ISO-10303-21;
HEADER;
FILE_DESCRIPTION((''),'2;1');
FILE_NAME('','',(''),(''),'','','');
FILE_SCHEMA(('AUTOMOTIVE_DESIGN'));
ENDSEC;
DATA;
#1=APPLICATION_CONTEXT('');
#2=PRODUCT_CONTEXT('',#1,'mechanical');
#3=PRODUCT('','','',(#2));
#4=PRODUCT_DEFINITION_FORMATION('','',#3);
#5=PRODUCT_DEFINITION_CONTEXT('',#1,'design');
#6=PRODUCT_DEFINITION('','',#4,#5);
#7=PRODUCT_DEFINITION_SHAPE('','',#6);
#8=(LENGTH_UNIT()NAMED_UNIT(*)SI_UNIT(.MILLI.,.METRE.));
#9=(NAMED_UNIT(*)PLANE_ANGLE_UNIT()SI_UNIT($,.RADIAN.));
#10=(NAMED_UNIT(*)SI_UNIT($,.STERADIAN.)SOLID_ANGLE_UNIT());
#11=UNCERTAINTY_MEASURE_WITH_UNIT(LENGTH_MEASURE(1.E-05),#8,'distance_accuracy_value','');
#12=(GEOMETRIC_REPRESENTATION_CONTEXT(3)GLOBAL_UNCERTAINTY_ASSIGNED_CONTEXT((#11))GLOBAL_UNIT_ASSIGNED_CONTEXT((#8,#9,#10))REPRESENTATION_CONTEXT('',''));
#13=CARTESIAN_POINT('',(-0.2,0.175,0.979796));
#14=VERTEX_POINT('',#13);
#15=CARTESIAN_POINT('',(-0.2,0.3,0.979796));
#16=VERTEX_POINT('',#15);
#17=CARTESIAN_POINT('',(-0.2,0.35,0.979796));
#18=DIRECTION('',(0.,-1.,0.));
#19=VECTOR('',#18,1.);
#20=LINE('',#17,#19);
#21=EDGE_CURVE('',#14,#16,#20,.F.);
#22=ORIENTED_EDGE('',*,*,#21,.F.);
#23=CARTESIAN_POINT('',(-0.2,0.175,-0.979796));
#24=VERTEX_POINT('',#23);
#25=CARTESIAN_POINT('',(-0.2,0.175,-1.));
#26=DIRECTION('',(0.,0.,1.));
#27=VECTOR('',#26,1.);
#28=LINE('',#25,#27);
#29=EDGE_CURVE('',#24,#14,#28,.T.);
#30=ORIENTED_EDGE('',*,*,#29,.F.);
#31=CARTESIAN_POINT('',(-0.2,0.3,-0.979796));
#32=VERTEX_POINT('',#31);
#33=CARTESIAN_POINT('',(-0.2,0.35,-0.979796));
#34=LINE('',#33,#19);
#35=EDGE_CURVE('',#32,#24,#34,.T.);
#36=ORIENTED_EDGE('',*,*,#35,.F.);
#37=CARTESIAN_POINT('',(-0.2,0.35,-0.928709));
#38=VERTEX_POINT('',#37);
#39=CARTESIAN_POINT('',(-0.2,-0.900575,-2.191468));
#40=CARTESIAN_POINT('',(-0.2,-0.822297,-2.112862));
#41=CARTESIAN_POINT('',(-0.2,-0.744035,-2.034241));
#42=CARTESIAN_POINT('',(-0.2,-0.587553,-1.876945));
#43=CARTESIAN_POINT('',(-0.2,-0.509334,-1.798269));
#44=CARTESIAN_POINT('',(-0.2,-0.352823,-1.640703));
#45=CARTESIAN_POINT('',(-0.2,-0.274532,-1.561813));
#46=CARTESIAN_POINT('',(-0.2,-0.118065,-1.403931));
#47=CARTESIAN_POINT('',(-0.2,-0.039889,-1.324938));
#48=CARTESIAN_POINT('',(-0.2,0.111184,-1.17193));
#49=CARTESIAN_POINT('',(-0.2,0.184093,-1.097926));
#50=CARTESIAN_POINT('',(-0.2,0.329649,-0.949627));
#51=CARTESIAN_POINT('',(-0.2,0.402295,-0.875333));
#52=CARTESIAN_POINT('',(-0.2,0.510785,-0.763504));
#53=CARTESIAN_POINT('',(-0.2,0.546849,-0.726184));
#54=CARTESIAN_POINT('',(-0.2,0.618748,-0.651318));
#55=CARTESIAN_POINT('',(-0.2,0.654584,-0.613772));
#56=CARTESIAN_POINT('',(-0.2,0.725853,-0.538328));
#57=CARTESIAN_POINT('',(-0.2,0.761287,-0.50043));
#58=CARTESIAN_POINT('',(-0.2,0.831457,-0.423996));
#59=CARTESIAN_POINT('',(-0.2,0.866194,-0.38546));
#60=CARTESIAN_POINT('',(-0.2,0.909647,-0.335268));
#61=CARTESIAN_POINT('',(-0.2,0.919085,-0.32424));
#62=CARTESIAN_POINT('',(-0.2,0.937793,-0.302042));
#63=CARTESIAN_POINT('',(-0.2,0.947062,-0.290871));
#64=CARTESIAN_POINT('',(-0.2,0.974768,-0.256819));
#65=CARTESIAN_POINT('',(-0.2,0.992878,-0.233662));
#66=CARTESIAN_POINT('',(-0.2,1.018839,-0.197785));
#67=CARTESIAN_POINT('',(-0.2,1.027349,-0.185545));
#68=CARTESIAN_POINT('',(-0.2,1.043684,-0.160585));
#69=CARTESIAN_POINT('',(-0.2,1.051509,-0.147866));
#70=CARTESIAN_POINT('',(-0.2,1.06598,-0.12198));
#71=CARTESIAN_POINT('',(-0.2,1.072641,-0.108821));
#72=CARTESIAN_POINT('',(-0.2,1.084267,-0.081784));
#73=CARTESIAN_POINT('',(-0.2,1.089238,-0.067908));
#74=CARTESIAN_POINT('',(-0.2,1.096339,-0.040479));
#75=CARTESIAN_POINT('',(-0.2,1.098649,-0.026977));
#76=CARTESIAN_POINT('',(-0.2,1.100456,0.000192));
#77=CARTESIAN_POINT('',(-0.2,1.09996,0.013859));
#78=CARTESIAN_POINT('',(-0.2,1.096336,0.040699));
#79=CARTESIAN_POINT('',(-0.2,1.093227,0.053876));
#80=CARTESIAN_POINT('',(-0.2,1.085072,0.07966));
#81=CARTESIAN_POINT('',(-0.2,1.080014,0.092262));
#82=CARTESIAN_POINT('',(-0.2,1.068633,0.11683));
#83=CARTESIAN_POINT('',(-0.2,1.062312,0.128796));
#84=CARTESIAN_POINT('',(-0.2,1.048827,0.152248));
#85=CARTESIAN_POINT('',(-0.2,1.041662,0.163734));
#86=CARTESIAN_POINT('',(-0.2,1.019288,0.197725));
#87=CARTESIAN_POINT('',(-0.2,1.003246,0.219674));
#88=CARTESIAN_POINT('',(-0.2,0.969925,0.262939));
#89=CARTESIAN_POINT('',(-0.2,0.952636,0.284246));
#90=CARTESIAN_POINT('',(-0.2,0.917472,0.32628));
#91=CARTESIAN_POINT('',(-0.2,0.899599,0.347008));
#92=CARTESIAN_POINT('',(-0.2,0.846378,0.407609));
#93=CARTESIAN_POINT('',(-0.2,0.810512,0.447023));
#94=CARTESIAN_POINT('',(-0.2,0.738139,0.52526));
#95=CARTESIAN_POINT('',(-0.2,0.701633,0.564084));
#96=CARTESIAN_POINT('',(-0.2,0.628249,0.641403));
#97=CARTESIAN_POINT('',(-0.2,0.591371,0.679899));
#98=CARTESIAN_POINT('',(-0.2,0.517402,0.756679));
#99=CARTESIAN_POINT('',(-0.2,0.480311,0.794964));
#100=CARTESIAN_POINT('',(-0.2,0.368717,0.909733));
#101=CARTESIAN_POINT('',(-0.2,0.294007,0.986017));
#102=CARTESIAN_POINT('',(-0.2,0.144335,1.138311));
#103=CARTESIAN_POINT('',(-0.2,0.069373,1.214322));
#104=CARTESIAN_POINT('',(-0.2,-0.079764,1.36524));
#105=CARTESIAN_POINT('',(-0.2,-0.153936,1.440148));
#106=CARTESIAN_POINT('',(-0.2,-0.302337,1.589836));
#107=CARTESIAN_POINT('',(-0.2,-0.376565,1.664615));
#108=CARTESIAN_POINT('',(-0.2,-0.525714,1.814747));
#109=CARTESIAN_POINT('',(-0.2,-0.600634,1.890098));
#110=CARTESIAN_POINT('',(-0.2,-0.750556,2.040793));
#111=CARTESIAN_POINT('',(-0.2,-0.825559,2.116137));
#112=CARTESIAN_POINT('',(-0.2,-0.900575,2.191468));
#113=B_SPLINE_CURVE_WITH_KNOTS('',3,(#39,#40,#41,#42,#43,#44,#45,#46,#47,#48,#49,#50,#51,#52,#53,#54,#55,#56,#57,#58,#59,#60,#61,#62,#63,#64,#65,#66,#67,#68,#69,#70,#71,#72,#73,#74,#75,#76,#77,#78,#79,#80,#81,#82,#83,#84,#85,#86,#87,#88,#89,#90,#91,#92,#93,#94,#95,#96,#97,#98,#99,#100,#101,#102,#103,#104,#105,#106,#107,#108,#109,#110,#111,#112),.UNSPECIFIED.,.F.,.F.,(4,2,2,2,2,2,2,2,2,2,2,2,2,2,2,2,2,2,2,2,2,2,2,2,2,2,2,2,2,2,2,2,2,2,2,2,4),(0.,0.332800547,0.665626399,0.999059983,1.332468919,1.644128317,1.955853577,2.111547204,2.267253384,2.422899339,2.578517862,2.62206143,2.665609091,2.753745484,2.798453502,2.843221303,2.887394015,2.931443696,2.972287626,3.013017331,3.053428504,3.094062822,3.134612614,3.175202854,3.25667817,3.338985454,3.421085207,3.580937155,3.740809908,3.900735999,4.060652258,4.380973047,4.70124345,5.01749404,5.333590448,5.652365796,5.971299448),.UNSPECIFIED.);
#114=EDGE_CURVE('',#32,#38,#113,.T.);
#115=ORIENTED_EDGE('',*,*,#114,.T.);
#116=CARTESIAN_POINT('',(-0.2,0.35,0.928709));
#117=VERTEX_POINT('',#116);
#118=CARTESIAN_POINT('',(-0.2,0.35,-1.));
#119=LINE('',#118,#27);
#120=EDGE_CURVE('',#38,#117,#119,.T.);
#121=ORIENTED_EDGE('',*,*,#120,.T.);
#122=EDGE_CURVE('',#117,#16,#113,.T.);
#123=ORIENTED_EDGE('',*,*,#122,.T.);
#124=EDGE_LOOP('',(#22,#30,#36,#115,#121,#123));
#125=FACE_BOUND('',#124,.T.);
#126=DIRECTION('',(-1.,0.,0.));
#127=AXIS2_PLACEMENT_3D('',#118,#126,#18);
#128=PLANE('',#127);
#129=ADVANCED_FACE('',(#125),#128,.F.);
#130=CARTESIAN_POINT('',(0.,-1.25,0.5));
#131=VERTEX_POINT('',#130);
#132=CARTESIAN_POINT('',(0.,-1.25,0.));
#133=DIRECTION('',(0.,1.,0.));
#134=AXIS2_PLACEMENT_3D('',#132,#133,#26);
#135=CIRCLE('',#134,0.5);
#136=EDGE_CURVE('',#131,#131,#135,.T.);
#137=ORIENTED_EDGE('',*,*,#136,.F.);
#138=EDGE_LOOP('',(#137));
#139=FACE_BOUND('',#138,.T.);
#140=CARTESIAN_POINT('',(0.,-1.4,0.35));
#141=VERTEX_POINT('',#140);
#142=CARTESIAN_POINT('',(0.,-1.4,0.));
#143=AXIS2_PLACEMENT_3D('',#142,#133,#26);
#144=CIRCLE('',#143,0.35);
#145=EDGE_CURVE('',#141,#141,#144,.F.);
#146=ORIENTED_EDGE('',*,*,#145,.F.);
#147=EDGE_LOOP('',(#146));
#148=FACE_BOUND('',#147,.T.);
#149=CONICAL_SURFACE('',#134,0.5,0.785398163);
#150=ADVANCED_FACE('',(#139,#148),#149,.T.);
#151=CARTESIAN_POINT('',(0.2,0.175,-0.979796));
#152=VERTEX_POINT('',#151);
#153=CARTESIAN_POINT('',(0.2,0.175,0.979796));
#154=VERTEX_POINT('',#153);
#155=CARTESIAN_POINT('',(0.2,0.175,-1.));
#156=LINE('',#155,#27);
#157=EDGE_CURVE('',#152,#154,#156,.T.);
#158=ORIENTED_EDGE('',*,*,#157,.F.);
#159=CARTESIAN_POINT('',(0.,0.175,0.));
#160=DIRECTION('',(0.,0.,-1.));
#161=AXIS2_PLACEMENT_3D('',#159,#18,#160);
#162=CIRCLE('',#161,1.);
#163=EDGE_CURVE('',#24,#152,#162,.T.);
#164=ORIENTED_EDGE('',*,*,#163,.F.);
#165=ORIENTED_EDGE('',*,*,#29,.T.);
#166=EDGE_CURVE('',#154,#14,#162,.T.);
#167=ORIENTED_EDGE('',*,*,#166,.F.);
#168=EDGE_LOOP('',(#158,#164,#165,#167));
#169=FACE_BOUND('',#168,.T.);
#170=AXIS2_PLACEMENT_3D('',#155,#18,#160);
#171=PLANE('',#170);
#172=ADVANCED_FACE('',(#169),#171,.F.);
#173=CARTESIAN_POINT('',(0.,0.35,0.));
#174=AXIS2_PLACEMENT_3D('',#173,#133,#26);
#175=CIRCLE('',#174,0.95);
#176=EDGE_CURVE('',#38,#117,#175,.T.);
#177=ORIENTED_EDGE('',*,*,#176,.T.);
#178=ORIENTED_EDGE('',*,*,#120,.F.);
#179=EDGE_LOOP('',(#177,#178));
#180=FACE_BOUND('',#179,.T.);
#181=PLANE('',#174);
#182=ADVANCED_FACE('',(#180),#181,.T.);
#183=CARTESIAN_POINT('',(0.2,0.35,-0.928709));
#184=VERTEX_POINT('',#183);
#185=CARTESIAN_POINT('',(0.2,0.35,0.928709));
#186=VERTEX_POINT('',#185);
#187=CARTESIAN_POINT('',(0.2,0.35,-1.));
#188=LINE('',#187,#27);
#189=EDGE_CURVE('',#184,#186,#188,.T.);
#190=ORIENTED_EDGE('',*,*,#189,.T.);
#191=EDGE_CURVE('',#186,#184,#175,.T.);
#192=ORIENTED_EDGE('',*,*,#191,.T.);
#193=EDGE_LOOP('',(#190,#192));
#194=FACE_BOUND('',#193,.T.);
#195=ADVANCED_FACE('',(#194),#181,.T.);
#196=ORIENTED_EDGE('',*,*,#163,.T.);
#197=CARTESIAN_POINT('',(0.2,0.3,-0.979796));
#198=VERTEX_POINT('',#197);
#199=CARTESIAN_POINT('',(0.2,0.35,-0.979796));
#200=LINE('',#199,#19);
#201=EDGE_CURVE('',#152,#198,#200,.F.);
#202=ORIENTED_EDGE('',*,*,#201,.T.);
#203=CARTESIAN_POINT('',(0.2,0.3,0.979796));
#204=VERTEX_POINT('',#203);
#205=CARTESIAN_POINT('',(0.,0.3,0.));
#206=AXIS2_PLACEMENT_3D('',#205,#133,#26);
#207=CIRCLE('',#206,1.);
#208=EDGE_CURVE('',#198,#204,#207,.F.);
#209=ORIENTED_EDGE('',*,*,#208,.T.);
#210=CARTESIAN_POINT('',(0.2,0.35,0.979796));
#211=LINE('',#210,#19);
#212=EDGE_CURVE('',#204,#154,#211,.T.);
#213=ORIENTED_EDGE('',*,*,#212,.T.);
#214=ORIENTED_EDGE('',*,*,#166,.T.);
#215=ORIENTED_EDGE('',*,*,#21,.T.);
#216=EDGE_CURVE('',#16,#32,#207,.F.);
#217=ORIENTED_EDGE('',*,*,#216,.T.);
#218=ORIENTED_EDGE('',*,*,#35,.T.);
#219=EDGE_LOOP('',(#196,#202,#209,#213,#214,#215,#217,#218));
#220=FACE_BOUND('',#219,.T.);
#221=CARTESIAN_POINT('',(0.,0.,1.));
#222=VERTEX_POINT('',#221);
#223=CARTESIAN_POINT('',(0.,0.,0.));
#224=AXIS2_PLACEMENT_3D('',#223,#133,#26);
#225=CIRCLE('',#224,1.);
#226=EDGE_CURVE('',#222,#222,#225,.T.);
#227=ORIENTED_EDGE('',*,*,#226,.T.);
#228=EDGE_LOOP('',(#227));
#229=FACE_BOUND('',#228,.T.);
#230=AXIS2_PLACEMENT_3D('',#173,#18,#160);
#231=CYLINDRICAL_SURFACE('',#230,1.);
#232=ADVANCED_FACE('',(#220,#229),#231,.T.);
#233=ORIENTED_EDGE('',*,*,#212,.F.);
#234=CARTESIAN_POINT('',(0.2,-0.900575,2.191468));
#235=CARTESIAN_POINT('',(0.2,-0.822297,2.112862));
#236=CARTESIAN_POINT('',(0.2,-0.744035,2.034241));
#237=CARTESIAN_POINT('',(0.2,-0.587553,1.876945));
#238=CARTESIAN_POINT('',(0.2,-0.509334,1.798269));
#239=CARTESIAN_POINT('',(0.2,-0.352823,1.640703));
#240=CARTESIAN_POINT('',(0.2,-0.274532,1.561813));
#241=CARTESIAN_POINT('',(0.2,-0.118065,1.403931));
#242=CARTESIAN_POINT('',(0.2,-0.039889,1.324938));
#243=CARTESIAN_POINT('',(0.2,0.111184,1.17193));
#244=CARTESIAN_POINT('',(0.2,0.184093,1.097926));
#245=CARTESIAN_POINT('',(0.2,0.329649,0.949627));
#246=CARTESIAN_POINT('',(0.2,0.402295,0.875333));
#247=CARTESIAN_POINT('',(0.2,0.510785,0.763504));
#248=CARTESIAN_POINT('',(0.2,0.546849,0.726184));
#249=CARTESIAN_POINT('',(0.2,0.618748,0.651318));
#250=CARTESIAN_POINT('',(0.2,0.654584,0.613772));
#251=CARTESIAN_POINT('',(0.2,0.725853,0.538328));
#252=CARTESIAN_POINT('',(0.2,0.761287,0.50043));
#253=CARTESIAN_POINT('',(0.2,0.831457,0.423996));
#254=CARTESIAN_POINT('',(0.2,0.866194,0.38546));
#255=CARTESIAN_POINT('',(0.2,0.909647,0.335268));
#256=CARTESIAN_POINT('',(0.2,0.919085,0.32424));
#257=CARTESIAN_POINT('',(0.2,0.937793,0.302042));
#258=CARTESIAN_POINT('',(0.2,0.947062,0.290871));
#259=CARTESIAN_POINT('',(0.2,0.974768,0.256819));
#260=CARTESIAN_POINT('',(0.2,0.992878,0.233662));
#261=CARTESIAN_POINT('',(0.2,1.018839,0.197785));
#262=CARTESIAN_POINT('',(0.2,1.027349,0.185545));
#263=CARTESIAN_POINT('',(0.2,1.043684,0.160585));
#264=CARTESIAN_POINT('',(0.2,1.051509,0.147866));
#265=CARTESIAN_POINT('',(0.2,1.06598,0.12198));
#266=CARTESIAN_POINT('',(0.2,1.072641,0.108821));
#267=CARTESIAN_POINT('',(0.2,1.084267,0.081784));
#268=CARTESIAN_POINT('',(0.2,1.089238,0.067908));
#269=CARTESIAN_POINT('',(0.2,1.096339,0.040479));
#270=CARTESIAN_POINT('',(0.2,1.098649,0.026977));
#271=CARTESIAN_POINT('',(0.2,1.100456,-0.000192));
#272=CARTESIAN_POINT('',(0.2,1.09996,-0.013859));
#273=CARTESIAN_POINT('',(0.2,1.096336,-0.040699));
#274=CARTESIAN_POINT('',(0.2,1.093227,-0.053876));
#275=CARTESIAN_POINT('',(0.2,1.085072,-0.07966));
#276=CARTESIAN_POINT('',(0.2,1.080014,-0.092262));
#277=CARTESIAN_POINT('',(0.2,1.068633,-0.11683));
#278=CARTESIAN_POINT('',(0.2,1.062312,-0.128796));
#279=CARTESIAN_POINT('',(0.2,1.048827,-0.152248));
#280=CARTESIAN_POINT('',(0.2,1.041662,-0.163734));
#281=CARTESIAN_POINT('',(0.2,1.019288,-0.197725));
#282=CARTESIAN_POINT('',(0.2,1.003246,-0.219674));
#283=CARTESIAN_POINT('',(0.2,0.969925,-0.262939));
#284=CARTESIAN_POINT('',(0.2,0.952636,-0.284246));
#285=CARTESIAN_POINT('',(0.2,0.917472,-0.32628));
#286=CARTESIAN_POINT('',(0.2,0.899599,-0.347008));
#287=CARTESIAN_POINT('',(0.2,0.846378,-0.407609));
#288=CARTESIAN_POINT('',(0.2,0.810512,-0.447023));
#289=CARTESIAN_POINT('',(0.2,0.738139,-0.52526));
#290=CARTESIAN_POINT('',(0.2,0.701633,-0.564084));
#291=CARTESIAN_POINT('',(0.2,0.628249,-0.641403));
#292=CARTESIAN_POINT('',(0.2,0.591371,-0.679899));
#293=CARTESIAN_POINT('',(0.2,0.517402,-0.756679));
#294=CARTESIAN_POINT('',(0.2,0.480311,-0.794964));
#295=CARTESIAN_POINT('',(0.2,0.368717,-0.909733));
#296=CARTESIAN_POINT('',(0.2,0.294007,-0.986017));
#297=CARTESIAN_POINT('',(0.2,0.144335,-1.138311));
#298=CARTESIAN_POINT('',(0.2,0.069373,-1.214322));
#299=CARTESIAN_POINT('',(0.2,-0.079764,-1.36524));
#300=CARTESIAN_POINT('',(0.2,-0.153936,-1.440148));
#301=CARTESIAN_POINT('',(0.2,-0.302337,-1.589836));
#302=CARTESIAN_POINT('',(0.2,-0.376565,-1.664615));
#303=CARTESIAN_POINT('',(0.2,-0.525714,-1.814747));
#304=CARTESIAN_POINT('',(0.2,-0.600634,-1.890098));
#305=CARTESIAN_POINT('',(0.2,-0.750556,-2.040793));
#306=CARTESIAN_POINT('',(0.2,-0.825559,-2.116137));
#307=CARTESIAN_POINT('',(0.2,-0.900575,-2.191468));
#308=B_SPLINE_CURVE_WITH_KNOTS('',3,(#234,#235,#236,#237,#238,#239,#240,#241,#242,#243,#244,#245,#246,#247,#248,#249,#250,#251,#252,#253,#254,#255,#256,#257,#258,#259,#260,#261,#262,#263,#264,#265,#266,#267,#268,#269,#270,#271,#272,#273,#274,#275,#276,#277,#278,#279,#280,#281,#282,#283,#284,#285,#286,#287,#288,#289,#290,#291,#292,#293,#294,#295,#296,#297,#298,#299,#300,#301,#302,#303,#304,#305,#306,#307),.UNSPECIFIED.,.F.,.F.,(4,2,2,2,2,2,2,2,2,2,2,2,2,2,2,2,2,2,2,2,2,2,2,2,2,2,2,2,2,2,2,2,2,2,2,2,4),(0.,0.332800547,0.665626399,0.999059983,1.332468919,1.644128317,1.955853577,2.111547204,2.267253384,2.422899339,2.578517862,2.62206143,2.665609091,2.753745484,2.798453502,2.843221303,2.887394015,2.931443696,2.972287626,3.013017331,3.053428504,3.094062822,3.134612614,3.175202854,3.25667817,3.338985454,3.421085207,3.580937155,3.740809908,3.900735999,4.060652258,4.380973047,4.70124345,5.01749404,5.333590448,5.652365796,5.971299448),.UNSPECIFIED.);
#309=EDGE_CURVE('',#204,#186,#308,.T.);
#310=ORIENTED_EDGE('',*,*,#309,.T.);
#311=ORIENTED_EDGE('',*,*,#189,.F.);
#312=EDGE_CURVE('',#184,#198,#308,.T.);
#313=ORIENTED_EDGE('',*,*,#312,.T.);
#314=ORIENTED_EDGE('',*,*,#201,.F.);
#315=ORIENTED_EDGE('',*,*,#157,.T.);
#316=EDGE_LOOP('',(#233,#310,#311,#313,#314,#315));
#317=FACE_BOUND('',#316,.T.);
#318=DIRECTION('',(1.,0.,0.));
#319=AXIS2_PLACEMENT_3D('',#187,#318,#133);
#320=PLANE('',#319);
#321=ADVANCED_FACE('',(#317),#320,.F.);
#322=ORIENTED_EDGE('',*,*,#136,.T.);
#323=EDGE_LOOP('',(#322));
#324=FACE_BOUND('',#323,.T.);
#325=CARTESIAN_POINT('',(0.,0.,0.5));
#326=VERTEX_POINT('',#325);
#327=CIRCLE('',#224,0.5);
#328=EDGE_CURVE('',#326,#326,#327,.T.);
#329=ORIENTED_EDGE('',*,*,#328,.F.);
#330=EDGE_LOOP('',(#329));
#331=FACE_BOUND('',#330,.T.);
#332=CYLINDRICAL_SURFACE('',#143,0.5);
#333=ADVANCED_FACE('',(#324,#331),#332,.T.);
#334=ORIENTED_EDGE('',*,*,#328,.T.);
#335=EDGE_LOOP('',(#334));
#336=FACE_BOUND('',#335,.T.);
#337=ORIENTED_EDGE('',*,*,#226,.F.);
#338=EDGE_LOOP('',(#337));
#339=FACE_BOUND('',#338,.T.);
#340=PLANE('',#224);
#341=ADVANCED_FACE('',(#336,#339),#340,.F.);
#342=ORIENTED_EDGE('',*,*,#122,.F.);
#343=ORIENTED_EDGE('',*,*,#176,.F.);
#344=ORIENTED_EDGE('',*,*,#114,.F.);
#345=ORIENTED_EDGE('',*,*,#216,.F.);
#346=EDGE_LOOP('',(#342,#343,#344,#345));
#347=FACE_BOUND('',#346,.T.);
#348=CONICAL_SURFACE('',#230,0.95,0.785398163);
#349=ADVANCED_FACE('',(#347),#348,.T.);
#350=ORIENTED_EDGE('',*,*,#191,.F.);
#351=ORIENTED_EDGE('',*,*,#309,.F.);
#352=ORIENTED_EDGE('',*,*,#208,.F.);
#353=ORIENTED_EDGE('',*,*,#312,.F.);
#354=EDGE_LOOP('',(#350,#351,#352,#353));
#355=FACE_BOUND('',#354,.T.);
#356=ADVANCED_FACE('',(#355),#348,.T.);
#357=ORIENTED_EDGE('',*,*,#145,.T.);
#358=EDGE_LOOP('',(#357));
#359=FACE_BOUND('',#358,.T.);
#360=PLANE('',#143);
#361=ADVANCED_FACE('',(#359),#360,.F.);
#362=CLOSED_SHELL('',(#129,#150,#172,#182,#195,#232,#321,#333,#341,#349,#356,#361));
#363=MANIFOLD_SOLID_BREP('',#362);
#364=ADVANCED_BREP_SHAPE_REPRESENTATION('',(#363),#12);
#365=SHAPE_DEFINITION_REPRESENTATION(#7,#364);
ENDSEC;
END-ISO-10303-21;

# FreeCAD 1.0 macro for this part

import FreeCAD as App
import Part
import Sketcher
from FreeCAD import Vector
Q = App.Units.Quantity


def edges_at(feature, points):
    """Names of the edges that pass closest to the given points."""
    edges = feature.Shape.Edges
    near = lambda p: min(range(len(edges)), key=lambda i: edges[i].distToShape(Part.Vertex(*p))[0])
    return sorted({f"Edge{near(p) + 1}" for p in points})


def add_polygon(sketch, points):
    """Adds a closed chain of lines whose ends are joined by coincident constraints."""
    first, n = sketch.GeometryCount, len(points)
    for a, b in zip(points, points[1:] + points[:1]):
        sketch.addGeometry(Part.LineSegment(App.Vector(*a, 0), App.Vector(*b, 0)), False)
    for i in range(n):
        sketch.addConstraint(Sketcher.Constraint("Coincident", first + i, 2, first + (i + 1) % n, 1))

doc = App.newDocument("Part")
body = doc.addObject("PartDesign::Body", "Body")

# Sketch on XZ plane
sketch1 = doc.addObject("Sketcher::SketchObject", "Sketch")
body.addObject(sketch1)
sketch1.AttachmentSupport = (doc.XZ_Plane, [""])
sketch1.MapMode = "FlatFace"
sketch1.addGeometry(Part.Circle(Vector(0, 0, 0), Vector(0, 0, 1), 1), False)
sketch1.addConstraint([
    Sketcher.Constraint("Coincident", 0, 3, -1, 1),
    Sketcher.Constraint("Diameter", 0, Q("2 mm")),
])
pad1 = doc.addObject("PartDesign::Pad", "Pad")
body.addObject(pad1)
pad1.Profile = sketch1
pad1.Length = 0.35
pad1.Reversed = True

# Sketch on XZ plane
sketch2 = doc.addObject("Sketcher::SketchObject", "Sketch001")
body.addObject(sketch2)
sketch2.AttachmentSupport = (doc.XZ_Plane, [""])
sketch2.MapMode = "FlatFace"
sketch2.addGeometry(Part.Circle(Vector(0, 0, 0), Vector(0, 0, 1), 0.5), False)
sketch2.addConstraint([
    Sketcher.Constraint("Coincident", 0, 3, -1, 1),
    Sketcher.Constraint("Diameter", 0, Q("1 mm")),
])
pad2 = doc.addObject("PartDesign::Pad", "Pad001")
body.addObject(pad2)
pad2.Profile = sketch2
pad2.Length = 1.4
doc.recompute()

chamfer = doc.addObject("PartDesign::Chamfer", "Chamfer")
body.addObject(chamfer)
chamfer.Base = (pad2, edges_at(pad2, [(-1, 0.35, 0)]))
chamfer.Size = 0.05
doc.recompute()

chamfer2 = doc.addObject("PartDesign::Chamfer", "Chamfer001")
body.addObject(chamfer2)
chamfer2.Base = (chamfer, edges_at(chamfer, [(-0.5, -1.4, 0)]))
chamfer2.Size = 0.15

# Sketch on XY plane
sketch3 = doc.addObject("Sketcher::SketchObject", "Sketch002")
body.addObject(sketch3)
sketch3.AttachmentSupport = (doc.XY_Plane, [""])
sketch3.MapMode = "FlatFace"
add_polygon(sketch3, [(0.2, 0.35), (-0.2, 0.35), (-0.2, 0.175), (0.2, 0.175)])  # lines 0-3
sketch3.addConstraint([
    Sketcher.Constraint("Horizontal", 0),
    Sketcher.Constraint("Vertical", 1),
    Sketcher.Constraint("Horizontal", 2),
    Sketcher.Constraint("Vertical", 3),
    Sketcher.Constraint("DistanceX", 0, 2, 0, 1, Q("0.4 mm")),
    Sketcher.Constraint("DistanceX", 0, 2, -1, 1, Q("0.2 mm")),
    Sketcher.Constraint("DistanceY", 1, 2, 1, 1, Q("0.175 mm")),
    Sketcher.Constraint("DistanceY", -1, 1, 0, 2, Q("0.35 mm")),
])
pocket1 = doc.addObject("PartDesign::Pocket", "Pocket")
body.addObject(pocket1)
pocket1.Profile = sketch3
pocket1.Type = "ThroughAll"
pocket1.Midplane = True

doc.recompute()
